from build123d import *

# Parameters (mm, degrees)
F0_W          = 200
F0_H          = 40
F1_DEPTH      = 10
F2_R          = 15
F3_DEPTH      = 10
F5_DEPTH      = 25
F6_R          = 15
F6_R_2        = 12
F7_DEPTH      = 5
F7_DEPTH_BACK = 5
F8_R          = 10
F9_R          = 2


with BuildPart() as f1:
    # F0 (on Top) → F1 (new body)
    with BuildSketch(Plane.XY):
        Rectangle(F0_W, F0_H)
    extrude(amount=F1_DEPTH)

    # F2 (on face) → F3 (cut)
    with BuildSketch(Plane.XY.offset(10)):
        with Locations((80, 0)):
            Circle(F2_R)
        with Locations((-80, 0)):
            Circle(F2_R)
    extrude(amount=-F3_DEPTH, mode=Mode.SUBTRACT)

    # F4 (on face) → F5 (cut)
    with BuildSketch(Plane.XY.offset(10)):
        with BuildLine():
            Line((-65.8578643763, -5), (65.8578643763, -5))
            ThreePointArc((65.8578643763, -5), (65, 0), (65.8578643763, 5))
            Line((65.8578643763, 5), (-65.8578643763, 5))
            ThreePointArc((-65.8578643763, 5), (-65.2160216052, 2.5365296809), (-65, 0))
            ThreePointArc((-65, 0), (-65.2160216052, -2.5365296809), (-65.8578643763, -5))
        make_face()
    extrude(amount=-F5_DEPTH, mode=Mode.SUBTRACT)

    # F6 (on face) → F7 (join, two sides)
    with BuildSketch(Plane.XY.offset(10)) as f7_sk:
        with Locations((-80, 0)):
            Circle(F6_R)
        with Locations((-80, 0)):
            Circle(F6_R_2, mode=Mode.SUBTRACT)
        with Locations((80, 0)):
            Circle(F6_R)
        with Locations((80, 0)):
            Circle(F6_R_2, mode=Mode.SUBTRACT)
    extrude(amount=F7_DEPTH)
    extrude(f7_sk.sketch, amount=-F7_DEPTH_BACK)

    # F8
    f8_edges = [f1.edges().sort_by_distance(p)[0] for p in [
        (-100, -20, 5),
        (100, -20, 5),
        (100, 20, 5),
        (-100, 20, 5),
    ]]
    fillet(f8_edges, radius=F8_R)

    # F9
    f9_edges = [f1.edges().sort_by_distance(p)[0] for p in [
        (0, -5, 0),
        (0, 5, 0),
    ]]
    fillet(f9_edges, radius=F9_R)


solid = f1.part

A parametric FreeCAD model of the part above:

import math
import FreeCAD as App
import Part
import Sketcher
from FreeCAD import Vector


def edges_at(feature, points):
    """Names of the edges that pass closest to the given points."""
    edges = feature.Shape.Edges
    near = lambda p: min(range(len(edges)), key=lambda i: edges[i].distToShape(Part.Vertex(*p))[0])
    return sorted({f"Edge{near(p) + 1}" for p in points})


def add_polygon(sketch, points):
    """Adds a closed chain of lines whose ends are joined by coincident constraints."""
    first, n = sketch.GeometryCount, len(points)
    for a, b in zip(points, points[1:] + points[:1]):
        sketch.addGeometry(Part.LineSegment(App.Vector(*a, 0), App.Vector(*b, 0)), False)
    for i in range(n):
        sketch.addConstraint(Sketcher.Constraint("Coincident", first + i, 2, first + (i + 1) % n, 1))

doc = App.newDocument("Part")
body = doc.addObject("PartDesign::Body", "Body")

# Sketch on XY plane
sketch1 = body.newObject("Sketcher::SketchObject", "Sketch")
sketch1.AttachmentSupport = (doc.getObject("XY_Plane"), [""])
sketch1.MapMode = "FlatFace"
add_polygon(sketch1, [(-100, 20), (-100, -20), (100, -20), (100, 20)])  # lines 0-3
sketch1.addConstraint([
    Sketcher.Constraint("Vertical", 0),
    Sketcher.Constraint("Horizontal", 1),
    Sketcher.Constraint("Vertical", 2),
    Sketcher.Constraint("Horizontal", 3),
    Sketcher.Constraint("Symmetric", 0, 2, 2, 2, -1, 1),
    Sketcher.Constraint("DistanceX", 1, 1, 1, 2, 200.0),
    Sketcher.Constraint("DistanceY", 0, 2, 0, 1, 40.0),
])
pad1 = body.newObject("PartDesign::Pad", "Pad")
pad1.Profile = sketch1
pad1.Length = 10

# Sketch on XY plane
sketch2 = body.newObject("Sketcher::SketchObject", "Sketch001")
sketch2.AttachmentSupport = (doc.getObject("XY_Plane"), [""])
sketch2.MapMode = "FlatFace"
sketch2.AttachmentOffset = App.Placement(Vector(0, 0, 10), App.Rotation())
sketch2.addGeometry([
    Part.Circle(Vector(80, 0, 0), Vector(0, 0, 1), 15),
    Part.Circle(Vector(-80, 0, 0), Vector(0, 0, 1), 15),
], False)
sketch2.addConstraint([
    Sketcher.Constraint("Equal", 0, 1),
    Sketcher.Constraint("Symmetric", 0, 3, 1, 3, -1, 1),
    Sketcher.Constraint("PointOnObject", 0, 3, -1),
    Sketcher.Constraint("Diameter", 0, 30.0),
    Sketcher.Constraint("DistanceX", -1, 1, 0, 3, 80.0),
])
pocket1 = body.newObject("PartDesign::Pocket", "Pocket")
pocket1.Profile = sketch2
pocket1.Length = 10

# Sketch on XY plane
sketch3 = body.newObject("Sketcher::SketchObject", "Sketch002")
sketch3.AttachmentSupport = (doc.getObject("XY_Plane"), [""])
sketch3.MapMode = "FlatFace"
sketch3.AttachmentOffset = App.Placement(Vector(0, 0, 10), App.Rotation())
sketch3.addGeometry([
    Part.LineSegment(Vector(-66, -5, 0), Vector(66, -5, 0)),  # 0
    Part.ArcOfCircle(Part.Circle(Vector(80, 0, 0), Vector(0, 0, 1), 15), math.radians(161), math.radians(199)),  # 1
    Part.LineSegment(Vector(66, 5, 0), Vector(-66, 5, 0)),  # 2
    Part.ArcOfCircle(Part.Circle(Vector(-80, 0, 0), Vector(0, 0, 1), 15), math.radians(0), math.radians(19.47)),  # 3
    Part.ArcOfCircle(Part.Circle(Vector(-80, 0, 0), Vector(0, 0, 1), 15), math.radians(-19.47), math.radians(0)),  # 4
], False)
sketch3.addConstraint([
    Sketcher.Constraint("Coincident", 0, 2, 1, 2),
    Sketcher.Constraint("Coincident", 1, 1, 2, 1),
    Sketcher.Constraint("Coincident", 2, 2, 3, 2),
    Sketcher.Constraint("Tangent", 3, 1, 4, 2),
    Sketcher.Constraint("Coincident", 4, 1, 0, 1),
    Sketcher.Constraint("Horizontal", 0),
    Sketcher.Constraint("Horizontal", 2),
    Sketcher.Constraint("Equal", 1, 3),
    Sketcher.Constraint("Equal", 3, 4),
    Sketcher.Constraint("Symmetric", 1, 3, 3, 3, -1, 1),
    Sketcher.Constraint("Symmetric", 0, 2, 1, 1, -1),
    Sketcher.Constraint("PointOnObject", 3, 1, -1),
    Sketcher.Constraint("Radius", 1, 15.0),
    Sketcher.Constraint("DistanceX", -1, 1, 1, 3, 80.0),
    Sketcher.Constraint("DistanceY", 0, 2, -1, 1, 5.0),
])
pocket2 = body.newObject("PartDesign::Pocket", "Pocket001")
pocket2.Profile = sketch3
pocket2.Length = 25

# Sketch on XY plane
sketch4 = body.newObject("Sketcher::SketchObject", "Sketch003")
sketch4.AttachmentSupport = (doc.getObject("XY_Plane"), [""])
sketch4.MapMode = "FlatFace"
sketch4.AttachmentOffset = App.Placement(Vector(0, 0, 10), App.Rotation())
sketch4.addGeometry([
    Part.Circle(Vector(-80, 0, 0), Vector(0, 0, 1), 15),
    Part.Circle(Vector(-80, 0, 0), Vector(0, 0, 1), 12),
    Part.Circle(Vector(80, 0, 0), Vector(0, 0, 1), 15),
    Part.Circle(Vector(80, 0, 0), Vector(0, 0, 1), 12),
], False)
sketch4.addConstraint([
    Sketcher.Constraint("Coincident", 1, 3, 0, 3),
    Sketcher.Constraint("Coincident", 3, 3, 2, 3),
    Sketcher.Constraint("Equal", 0, 2),
    Sketcher.Constraint("Equal", 1, 3),
    Sketcher.Constraint("Symmetric", 0, 3, 2, 3, -1, 1),
    Sketcher.Constraint("PointOnObject", 0, 3, -1),
    Sketcher.Constraint("Diameter", 0, 30.0),
    Sketcher.Constraint("Diameter", 1, 24.0),
    Sketcher.Constraint("DistanceX", 0, 3, -1, 1, 80.0),
])
pad2 = body.newObject("PartDesign::Pad", "Pad001")
pad2.Profile = sketch4
pad2.Type = "TwoLengths"
pad2.Length = 5
pad2.Length2 = 5
doc.recompute()

fillet = body.newObject("PartDesign::Fillet", "Fillet")
fillet.Base = (pad2, edges_at(pad2, [
    (-100, -20, 5),
    (100, -20, 5),
    (100, 20, 5),
    (-100, 20, 5),
]))
fillet.Radius = 10
doc.recompute()

fillet2 = body.newObject("PartDesign::Fillet", "Fillet001")
fillet2.Base = (fillet, edges_at(fillet, [(0, -5, 0), (0, 5, 0)]))
fillet2.Radius = 2

doc.recompute()
